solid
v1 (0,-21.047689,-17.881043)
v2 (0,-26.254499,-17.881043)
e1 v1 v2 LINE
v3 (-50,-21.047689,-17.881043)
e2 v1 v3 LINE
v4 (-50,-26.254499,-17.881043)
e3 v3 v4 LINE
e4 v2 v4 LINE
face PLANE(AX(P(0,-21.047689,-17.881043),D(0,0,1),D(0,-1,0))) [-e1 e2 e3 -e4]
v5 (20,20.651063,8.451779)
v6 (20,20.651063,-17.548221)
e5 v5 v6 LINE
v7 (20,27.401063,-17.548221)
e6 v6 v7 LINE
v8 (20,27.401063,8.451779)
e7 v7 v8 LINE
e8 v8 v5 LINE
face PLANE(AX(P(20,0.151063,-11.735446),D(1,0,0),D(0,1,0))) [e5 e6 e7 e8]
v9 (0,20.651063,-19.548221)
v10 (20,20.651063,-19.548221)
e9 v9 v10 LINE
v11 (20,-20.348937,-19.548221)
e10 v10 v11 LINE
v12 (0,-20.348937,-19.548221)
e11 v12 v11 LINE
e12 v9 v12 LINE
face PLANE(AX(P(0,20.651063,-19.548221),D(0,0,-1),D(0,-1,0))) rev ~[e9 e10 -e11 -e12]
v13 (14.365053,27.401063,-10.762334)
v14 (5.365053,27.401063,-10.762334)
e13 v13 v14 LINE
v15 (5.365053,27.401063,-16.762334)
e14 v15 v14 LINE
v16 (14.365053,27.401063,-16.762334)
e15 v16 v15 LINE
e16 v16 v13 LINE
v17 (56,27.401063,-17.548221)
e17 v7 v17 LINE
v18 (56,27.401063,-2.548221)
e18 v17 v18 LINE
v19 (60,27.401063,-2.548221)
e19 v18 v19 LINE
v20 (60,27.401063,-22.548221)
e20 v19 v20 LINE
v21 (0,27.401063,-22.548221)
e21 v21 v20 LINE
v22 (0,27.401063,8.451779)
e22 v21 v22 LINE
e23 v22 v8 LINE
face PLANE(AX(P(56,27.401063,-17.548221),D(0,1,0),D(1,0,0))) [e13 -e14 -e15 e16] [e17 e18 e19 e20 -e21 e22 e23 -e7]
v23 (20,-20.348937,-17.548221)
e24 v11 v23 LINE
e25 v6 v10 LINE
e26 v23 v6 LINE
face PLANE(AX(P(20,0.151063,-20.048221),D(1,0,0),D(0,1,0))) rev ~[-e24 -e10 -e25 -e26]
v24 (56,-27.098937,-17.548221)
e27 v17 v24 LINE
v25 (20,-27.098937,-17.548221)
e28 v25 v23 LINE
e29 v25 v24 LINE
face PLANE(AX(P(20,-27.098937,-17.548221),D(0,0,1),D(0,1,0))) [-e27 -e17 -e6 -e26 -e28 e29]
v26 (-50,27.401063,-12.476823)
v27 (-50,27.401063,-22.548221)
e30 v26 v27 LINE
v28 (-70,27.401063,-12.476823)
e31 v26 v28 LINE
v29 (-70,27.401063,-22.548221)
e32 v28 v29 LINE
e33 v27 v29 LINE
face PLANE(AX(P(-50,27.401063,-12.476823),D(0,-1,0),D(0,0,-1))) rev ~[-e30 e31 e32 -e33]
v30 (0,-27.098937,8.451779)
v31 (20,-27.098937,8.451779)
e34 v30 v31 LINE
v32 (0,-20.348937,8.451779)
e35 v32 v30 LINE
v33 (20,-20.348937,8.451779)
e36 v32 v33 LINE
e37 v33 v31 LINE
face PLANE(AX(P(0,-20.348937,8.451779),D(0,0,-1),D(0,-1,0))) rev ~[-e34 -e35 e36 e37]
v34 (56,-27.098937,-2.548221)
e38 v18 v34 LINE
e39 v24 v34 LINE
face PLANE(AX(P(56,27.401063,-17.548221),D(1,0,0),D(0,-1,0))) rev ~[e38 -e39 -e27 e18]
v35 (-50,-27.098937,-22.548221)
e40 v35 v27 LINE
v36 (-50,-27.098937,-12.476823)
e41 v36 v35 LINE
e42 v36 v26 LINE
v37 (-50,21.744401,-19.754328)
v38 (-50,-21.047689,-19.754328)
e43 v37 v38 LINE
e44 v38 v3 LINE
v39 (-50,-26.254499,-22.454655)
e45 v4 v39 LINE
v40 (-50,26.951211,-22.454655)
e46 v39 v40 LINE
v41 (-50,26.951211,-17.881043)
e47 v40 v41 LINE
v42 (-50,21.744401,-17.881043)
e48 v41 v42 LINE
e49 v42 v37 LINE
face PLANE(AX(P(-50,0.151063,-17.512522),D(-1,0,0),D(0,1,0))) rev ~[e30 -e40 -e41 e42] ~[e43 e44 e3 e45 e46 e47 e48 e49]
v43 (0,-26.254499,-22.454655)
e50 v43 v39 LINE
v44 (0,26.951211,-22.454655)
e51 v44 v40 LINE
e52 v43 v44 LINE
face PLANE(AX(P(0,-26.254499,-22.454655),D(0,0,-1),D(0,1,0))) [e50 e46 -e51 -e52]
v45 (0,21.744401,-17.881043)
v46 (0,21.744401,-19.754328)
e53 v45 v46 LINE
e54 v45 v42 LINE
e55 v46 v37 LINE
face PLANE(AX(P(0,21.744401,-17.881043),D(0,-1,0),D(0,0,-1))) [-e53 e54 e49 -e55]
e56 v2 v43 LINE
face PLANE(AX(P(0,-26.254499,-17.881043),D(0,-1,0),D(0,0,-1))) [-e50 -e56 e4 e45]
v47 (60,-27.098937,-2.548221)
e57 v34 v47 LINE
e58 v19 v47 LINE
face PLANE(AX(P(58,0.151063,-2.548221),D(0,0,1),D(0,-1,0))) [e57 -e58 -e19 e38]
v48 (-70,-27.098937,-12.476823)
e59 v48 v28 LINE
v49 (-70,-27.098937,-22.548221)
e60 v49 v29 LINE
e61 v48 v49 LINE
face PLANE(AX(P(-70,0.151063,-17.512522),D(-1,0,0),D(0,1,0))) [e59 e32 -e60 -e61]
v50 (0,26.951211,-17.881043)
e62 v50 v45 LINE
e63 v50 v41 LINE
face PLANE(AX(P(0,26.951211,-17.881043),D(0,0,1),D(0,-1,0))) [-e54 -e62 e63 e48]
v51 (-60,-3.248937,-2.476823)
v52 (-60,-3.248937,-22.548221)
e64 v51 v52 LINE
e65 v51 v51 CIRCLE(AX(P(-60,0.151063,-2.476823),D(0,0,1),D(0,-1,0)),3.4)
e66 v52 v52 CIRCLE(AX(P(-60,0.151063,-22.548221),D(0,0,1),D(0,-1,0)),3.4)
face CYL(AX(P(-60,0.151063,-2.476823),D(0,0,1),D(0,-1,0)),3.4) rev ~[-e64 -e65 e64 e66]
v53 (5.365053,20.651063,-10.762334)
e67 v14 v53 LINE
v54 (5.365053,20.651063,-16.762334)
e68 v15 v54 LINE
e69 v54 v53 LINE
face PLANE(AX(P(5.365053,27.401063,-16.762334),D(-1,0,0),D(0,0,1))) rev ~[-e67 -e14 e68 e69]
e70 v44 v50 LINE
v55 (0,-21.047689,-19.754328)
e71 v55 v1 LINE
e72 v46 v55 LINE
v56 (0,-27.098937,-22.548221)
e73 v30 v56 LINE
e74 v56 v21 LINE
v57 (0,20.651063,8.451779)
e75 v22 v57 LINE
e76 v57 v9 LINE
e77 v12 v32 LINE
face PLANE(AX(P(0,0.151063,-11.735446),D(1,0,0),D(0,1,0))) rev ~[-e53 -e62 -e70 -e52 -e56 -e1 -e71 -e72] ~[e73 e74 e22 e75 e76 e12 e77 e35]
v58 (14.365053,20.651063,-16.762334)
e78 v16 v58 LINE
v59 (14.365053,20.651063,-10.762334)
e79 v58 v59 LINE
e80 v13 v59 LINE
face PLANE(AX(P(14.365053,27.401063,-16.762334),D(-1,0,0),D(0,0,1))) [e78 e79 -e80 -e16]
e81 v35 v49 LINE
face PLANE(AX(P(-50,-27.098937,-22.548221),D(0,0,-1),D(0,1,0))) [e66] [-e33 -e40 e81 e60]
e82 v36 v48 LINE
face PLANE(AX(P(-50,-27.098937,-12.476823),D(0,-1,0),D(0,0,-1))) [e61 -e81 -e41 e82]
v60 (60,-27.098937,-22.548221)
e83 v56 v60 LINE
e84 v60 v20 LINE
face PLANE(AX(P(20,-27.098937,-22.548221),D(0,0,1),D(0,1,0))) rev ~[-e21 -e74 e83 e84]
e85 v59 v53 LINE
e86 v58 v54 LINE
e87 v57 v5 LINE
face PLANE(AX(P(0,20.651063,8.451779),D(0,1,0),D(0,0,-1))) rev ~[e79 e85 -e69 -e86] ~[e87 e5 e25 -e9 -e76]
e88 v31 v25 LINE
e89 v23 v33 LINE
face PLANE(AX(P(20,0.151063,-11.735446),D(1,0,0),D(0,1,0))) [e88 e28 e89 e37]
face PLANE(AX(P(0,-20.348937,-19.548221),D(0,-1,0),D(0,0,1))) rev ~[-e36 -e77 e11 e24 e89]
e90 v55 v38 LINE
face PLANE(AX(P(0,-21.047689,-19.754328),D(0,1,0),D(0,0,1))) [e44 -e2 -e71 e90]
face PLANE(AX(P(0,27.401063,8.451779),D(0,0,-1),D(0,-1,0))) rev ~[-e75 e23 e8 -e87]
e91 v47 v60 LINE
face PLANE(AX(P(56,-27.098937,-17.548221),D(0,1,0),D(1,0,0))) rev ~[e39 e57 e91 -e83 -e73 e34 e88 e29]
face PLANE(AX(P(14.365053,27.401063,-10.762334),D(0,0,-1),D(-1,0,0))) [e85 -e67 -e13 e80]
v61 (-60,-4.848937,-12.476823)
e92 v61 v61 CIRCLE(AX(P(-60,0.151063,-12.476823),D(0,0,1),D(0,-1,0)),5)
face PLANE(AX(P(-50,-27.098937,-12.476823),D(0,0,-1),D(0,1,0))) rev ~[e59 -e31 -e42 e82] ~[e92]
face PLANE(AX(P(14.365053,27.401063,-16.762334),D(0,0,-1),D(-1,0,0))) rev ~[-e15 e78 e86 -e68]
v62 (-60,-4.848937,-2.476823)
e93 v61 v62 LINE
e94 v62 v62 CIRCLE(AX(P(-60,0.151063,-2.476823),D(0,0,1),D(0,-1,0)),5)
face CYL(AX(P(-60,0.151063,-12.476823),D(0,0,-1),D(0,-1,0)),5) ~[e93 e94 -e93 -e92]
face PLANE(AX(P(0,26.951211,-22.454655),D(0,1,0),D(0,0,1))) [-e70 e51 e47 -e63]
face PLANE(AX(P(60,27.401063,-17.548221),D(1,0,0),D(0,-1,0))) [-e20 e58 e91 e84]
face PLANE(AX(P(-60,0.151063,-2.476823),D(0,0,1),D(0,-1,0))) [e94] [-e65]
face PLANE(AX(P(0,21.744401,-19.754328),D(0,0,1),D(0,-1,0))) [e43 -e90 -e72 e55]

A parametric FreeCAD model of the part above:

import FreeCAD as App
import Part
import Sketcher
from FreeCAD import Vector
Q = App.Units.Quantity


def add_polygon(sketch, points):
    """Adds a closed chain of lines whose ends are joined by coincident constraints."""
    first, n = sketch.GeometryCount, len(points)
    for a, b in zip(points, points[1:] + points[:1]):
        sketch.addGeometry(Part.LineSegment(App.Vector(*a, 0), App.Vector(*b, 0)), False)
    for i in range(n):
        sketch.addConstraint(Sketcher.Constraint("Coincident", first + i, 2, first + (i + 1) % n, 1))

doc = App.newDocument("Part")
body = doc.addObject("PartDesign::Body", "Body")

sketch1 = body.newObject("Sketcher::SketchObject", "Sketch")
sketch1.AttachmentSupport = (doc.getObject("YZ_Plane"), [""])
sketch1.MapMode = "FlatFace"
add_polygon(sketch1, [(-27, -23), (27, -23), (27, 8), (21, 8), (21, -20), (-20, -20), (-20, 8), (-27, 8)])
sketch1.addConstraint([
    Sketcher.Constraint("Horizontal", 0),
    Sketcher.Constraint("Vertical", 1),
    Sketcher.Constraint("Horizontal", 2),
    Sketcher.Constraint("Vertical", 3),
    Sketcher.Constraint("Horizontal", 4),
    Sketcher.Constraint("Vertical", 5),
    Sketcher.Constraint("Horizontal", 6),
    Sketcher.Constraint("Vertical", 7),
    Sketcher.Constraint("Horizontal", 2, 2, 5, 2),
    Sketcher.Constraint("Equal", 2, 6),
    Sketcher.Constraint("DistanceX", 4, 2, 4, 1, Q("41 mm")),
    Sketcher.Constraint("DistanceY", 1, 1, 1, 2, Q("31 mm")),
    Sketcher.Constraint("DistanceY", 3, 2, 3, 1, Q("28 mm")),
    Sketcher.Constraint("DistanceX", 0, 1, 0, 2, Q("54.5 mm")),
    Sketcher.Constraint("DistanceY", 0, 2, -1, 1, Q("22.548221 mm")),
    Sketcher.Constraint("DistanceX", -1, 1, 0, 2, Q("27.401063 mm")),
])
pad1 = body.newObject("PartDesign::Pad", "Pad")
pad1.Profile = sketch1
pad1.Length = 20

sketch2 = body.newObject("Sketcher::SketchObject", "Sketch001")
sketch2.AttachmentSupport = (doc.getObject("XZ_Plane"), [""])
sketch2.MapMode = "FlatFace"
sketch2.AttachmentOffset = App.Placement(Vector(0, 0, -27.401063), App.Rotation())
add_polygon(sketch2, [(14, -11), (14, -17), (5, -17), (5, -11)])
sketch2.addConstraint([
    Sketcher.Constraint("Vertical", 0),
    Sketcher.Constraint("Horizontal", 1),
    Sketcher.Constraint("Vertical", 2),
    Sketcher.Constraint("Horizontal", 3),
    Sketcher.Constraint("DistanceX", 1, 2, 1, 1, Q("9 mm")),
    Sketcher.Constraint("DistanceY", 0, 2, 0, 1, Q("6 mm")),
    Sketcher.Constraint("DistanceX", -1, 1, 0, 2, Q("14.365053 mm")),
    Sketcher.Constraint("DistanceY", 0, 2, -1, 1, Q("16.762334 mm")),
])
pocket1 = body.newObject("PartDesign::Pocket", "Pocket")
pocket1.Profile = sketch2
pocket1.Length = 8
pocket1.Reversed = True

sketch3 = body.newObject("Sketcher::SketchObject", "Sketch002")
sketch3.AttachmentSupport = (doc.getObject("YZ_Plane"), [""])
sketch3.MapMode = "FlatFace"
add_polygon(sketch3, [(-26.3, -17.9), (-21, -17.9), (-21, -19.8), (21.7, -19.8), (21.7, -17.9), (27, -17.9), (27, -22.5), (-26.3, -22.5)])
sketch3.addConstraint([
    Sketcher.Constraint("Horizontal", 0),
    Sketcher.Constraint("Vertical", 1),
    Sketcher.Constraint("Horizontal", 2),
    Sketcher.Constraint("Vertical", 3),
    Sketcher.Constraint("Horizontal", 4),
    Sketcher.Constraint("Vertical", 5),
    Sketcher.Constraint("Horizontal", 6),
    Sketcher.Constraint("Vertical", 7),
    Sketcher.Constraint("Horizontal", 0, 2, 3, 2),
    Sketcher.Constraint("Equal", 0, 4),
    Sketcher.Constraint("DistanceX", 0, 1, 0, 2, Q("5.20681 mm")),
    Sketcher.Constraint("DistanceX", 2, 1, 2, 2, Q("42.79209 mm")),
    Sketcher.Constraint("DistanceX", -1, 1, 2, 2, Q("21.744401 mm")),
    Sketcher.Constraint("DistanceY", 1, 2, 1, 1, Q("1.873285 mm")),
    Sketcher.Constraint("DistanceY", 5, 2, 5, 1, Q("4.573612 mm")),
    Sketcher.Constraint("DistanceY", 1, 2, -1, 1, Q("19.754328 mm")),
])
pad2 = body.newObject("PartDesign::Pad", "Pad001")
pad2.Profile = sketch3
pad2.Length = 50
pad2.Reversed = True

sketch4 = body.newObject("Sketcher::SketchObject", "Sketch003")
sketch4.AttachmentSupport = (doc.getObject("YZ_Plane"), [""])
sketch4.MapMode = "FlatFace"
sketch4.AttachmentOffset = App.Placement(Vector(0, 0, -50), App.Rotation())
add_polygon(sketch4, [(-27, -23), (-27, -12), (27, -12), (27, -23)])
sketch4.addConstraint([
    Sketcher.Constraint("Vertical", 0),
    Sketcher.Constraint("Horizontal", 1),
    Sketcher.Constraint("Vertical", 2),
    Sketcher.Constraint("Horizontal", 3),
    Sketcher.Constraint("DistanceX", 1, 1, 1, 2, Q("54.5 mm")),
    Sketcher.Constraint("DistanceY", 0, 1, 0, 2, Q("10.071398 mm")),
    Sketcher.Constraint("DistanceY", 2, 2, -1, 1, Q("22.548221 mm")),
    Sketcher.Constraint("DistanceX", 0, 2, -1, 1, Q("27.098937 mm")),
])
pad3 = body.newObject("PartDesign::Pad", "Pad002")
pad3.Profile = sketch4
pad3.Length = 20
pad3.Reversed = True

sketch5 = body.newObject("Sketcher::SketchObject", "Sketch004")
sketch5.AttachmentSupport = (doc.getObject("XY_Plane"), [""])
sketch5.MapMode = "FlatFace"
sketch5.AttachmentOffset = App.Placement(Vector(0, 0, -12.476823), App.Rotation())
sketch5.addGeometry(Part.Circle(Vector(-60, 0, 0), Vector(0, 0, 1), 5), False)
sketch5.addConstraint([
    Sketcher.Constraint("Diameter", 0, Q("10 mm")),
    Sketcher.Constraint("DistanceX", 0, 3, -1, 1, Q("60 mm")),
    Sketcher.Constraint("DistanceY", -1, 1, 0, 3, Q("0.151063 mm")),
])
pad4 = body.newObject("PartDesign::Pad", "Pad003")
pad4.Profile = sketch5
pad4.Length = 10

sketch6 = body.newObject("Sketcher::SketchObject", "Sketch005")
sketch6.AttachmentSupport = (doc.getObject("XY_Plane"), [""])
sketch6.MapMode = "FlatFace"
sketch6.AttachmentOffset = App.Placement(Vector(0, 0, -2.476823), App.Rotation())
sketch6.addGeometry(Part.Circle(Vector(-60, 0.2, 0), Vector(0, 0, 1), 3.4), False)
sketch6.addConstraint([
    Sketcher.Constraint("Diameter", 0, Q("6.8 mm")),
    Sketcher.Constraint("DistanceX", 0, 3, -1, 1, Q("60 mm")),
    Sketcher.Constraint("DistanceY", -1, 1, 0, 3, Q("0.151063 mm")),
])
pocket2 = body.newObject("PartDesign::Pocket", "Pocket001")
pocket2.Profile = sketch6
pocket2.Length = 25

sketch7 = body.newObject("Sketcher::SketchObject", "Sketch006")
sketch7.AttachmentSupport = (doc.getObject("YZ_Plane"), [""])
sketch7.MapMode = "FlatFace"
sketch7.AttachmentOffset = App.Placement(Vector(0, 0, 20), App.Rotation())
add_polygon(sketch7, [(-27, -18), (-27, -23), (27, -23), (27, -18)])
sketch7.addConstraint([
    Sketcher.Constraint("Vertical", 0),
    Sketcher.Constraint("Horizontal", 1),
    Sketcher.Constraint("Vertical", 2),
    Sketcher.Constraint("Horizontal", 3),
    Sketcher.Constraint("DistanceY", 0, 2, 0, 1, Q("5 mm")),
    Sketcher.Constraint("DistanceX", 1, 1, 1, 2, Q("54.5 mm")),
    Sketcher.Constraint("DistanceY", 0, 2, -1, 1, Q("22.548221 mm")),
    Sketcher.Constraint("DistanceX", 0, 2, -1, 1, Q("27.098937 mm")),
])
pad5 = body.newObject("PartDesign::Pad", "Pad004")
pad5.Profile = sketch7
pad5.Length = 40

sketch8 = body.newObject("Sketcher::SketchObject", "Sketch007")
sketch8.AttachmentSupport = (doc.getObject("XY_Plane"), [""])
sketch8.MapMode = "FlatFace"
sketch8.AttachmentOffset = App.Placement(Vector(0, 0, -17.548221), App.Rotation())
add_polygon(sketch8, [(60, 27.4), (56, 27.4), (56, -27.1), (60, -27.1)])
sketch8.addConstraint([
    Sketcher.Constraint("Horizontal", 0),
    Sketcher.Constraint("Vertical", 1),
    Sketcher.Constraint("Horizontal", 2),
    Sketcher.Constraint("Vertical", 3),
    Sketcher.Constraint("DistanceX", 0, 2, 0, 1, Q("4 mm")),
    Sketcher.Constraint("DistanceY", 1, 2, 1, 1, Q("54.5 mm")),
    Sketcher.Constraint("DistanceX", -1, 1, 0, 2, Q("56 mm")),
    Sketcher.Constraint("DistanceY", -1, 1, 0, 2, Q("27.401063 mm")),
])
pad6 = body.newObject("PartDesign::Pad", "Pad005")
pad6.Profile = sketch8
pad6.Length = 15

doc.recompute()
